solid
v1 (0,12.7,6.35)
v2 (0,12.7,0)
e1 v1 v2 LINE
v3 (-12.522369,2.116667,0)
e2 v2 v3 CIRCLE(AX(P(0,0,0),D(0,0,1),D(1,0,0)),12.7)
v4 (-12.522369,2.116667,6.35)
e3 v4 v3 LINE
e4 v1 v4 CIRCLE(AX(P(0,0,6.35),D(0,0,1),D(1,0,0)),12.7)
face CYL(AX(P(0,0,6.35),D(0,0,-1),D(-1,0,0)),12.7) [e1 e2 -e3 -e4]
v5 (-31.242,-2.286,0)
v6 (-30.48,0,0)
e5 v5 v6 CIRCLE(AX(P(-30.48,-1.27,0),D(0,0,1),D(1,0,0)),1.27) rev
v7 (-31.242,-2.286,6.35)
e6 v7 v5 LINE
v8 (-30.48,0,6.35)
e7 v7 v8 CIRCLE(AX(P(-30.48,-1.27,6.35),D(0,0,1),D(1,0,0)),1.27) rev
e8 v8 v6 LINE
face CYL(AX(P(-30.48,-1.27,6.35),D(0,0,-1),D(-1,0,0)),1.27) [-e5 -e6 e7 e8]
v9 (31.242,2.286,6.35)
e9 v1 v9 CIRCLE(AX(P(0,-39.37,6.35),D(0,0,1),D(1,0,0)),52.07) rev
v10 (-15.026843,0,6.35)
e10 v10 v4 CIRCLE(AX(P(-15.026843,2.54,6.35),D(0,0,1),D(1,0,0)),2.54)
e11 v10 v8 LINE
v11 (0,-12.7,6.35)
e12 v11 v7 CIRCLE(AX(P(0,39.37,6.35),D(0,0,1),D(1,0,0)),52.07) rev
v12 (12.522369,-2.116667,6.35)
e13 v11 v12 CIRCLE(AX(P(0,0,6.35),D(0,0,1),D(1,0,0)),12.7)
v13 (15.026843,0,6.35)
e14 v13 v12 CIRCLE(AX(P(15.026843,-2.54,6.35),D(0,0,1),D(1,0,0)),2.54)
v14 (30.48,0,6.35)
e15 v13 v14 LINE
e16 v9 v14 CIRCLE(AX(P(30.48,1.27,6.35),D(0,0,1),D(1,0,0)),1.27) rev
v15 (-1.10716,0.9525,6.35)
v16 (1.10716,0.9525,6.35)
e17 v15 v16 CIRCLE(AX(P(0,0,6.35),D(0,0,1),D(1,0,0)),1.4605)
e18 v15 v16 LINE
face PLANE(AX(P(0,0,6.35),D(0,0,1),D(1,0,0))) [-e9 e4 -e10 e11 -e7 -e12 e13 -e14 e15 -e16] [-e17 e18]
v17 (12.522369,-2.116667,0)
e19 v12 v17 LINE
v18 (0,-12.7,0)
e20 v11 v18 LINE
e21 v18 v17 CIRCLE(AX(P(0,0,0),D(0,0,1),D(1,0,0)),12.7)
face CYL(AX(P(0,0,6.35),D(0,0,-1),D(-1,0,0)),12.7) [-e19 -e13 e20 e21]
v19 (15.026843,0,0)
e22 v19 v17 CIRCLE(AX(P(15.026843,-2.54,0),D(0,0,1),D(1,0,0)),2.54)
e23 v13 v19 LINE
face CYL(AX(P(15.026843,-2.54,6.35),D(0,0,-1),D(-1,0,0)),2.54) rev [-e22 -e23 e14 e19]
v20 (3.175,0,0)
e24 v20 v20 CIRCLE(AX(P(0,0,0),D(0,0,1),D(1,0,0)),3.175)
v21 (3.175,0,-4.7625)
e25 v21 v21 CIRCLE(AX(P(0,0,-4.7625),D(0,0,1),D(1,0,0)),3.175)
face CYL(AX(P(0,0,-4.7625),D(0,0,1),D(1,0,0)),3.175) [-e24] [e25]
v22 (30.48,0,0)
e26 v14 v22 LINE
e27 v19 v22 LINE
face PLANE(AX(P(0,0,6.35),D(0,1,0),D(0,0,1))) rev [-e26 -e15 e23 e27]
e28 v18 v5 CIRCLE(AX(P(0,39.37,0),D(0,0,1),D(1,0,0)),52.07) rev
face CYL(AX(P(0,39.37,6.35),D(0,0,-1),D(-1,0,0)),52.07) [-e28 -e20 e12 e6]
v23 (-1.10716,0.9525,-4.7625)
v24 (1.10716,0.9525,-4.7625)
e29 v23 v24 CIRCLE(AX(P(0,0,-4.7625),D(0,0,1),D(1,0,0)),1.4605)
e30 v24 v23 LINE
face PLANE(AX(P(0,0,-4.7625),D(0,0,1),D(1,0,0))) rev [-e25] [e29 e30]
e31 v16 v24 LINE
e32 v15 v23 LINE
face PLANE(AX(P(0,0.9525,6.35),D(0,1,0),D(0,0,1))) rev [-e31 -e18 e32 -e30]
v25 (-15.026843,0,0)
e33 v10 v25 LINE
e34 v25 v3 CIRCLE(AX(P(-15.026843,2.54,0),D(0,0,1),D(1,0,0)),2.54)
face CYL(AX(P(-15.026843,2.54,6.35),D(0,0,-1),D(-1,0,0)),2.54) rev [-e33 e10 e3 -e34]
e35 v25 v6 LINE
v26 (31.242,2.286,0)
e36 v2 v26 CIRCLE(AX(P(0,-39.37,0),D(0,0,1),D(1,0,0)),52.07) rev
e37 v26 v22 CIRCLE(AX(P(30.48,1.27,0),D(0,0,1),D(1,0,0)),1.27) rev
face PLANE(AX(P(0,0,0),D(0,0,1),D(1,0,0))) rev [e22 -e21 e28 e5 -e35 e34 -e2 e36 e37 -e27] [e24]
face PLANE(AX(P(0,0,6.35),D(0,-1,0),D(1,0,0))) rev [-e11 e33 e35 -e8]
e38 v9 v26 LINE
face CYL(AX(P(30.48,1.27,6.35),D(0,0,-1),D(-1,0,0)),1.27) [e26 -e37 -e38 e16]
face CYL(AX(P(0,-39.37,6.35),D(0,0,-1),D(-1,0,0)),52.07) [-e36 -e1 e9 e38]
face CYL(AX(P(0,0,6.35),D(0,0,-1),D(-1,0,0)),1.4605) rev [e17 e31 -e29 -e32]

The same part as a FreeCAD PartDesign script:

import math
import FreeCAD as App
import Part
import Sketcher
Q = App.Units.Quantity

doc = App.newDocument("Part")
params = doc.addObject("Spreadsheet::Sheet", "Params")
for row, (alias, value) in enumerate([
    ("sketch1_radius", "0.5 in"),
    ("sketch1_radius2", "0.1 in"),
    ("sketch1_radius3", "0.05 in"),
    ("sketch1_radius4", "2.05 in"),
    ("pad1_length", "0.25 in"),
    ("sketch2_diameter", "0.25 in"),
    ("pad2_length", "0.4375 in"),
], start=1):
    params.set(f"A{row}", alias)
    params.set(f"B{row}", "=" + value)
    params.setAlias(f"B{row}", alias)

body = doc.addObject("PartDesign::Body", "Body")

sketch1 = doc.addObject("Sketcher::SketchObject", "Sketch")
body.addObject(sketch1)
sketch1.AttachmentSupport = (doc.XY_Plane, [""])
sketch1.MapMode = "FlatFace"
sketch1.addGeometry(Part.LineSegment(App.Vector(15, 0, 0), App.Vector(30.5, 0, 0)), False)
sketch1.addGeometry(Part.ArcOfCircle(Part.Circle(App.Vector(30.5, 1.3, 0), App.Vector(0, 0, 1), 1.3), math.radians(-90), math.radians(53)), False)
sketch1.addGeometry(Part.ArcOfCircle(Part.Circle(App.Vector(0, -39.4, 0), App.Vector(0, 0, 1), 52.1), math.radians(53), math.radians(90)), False)
sketch1.addGeometry(Part.ArcOfCircle(Part.Circle(App.Vector(0, 0, 0), App.Vector(0, 0, 1), 12.7), math.radians(90), math.radians(170)), False)
sketch1.addGeometry(Part.ArcOfCircle(Part.Circle(App.Vector(-15, 2.5, 0), App.Vector(0, 0, 1), 2.5), math.radians(-90), math.radians(-10)), False)
sketch1.addGeometry(Part.LineSegment(App.Vector(-15, 0, 0), App.Vector(-30.5, 0, 0)), False)
sketch1.addGeometry(Part.ArcOfCircle(Part.Circle(App.Vector(-30.5, -1.3, 0), App.Vector(0, 0, 1), 1.3), math.radians(90), math.radians(233)), False)
sketch1.addGeometry(Part.ArcOfCircle(Part.Circle(App.Vector(0, 39.4, 0), App.Vector(0, 0, 1), 52.1), math.radians(-127), math.radians(-90)), False)
sketch1.addGeometry(Part.ArcOfCircle(Part.Circle(App.Vector(0, 0, 0), App.Vector(0, 0, 1), 12.7), math.radians(-90), math.radians(-10)), False)
sketch1.addGeometry(Part.ArcOfCircle(Part.Circle(App.Vector(15, -2.5, 0), App.Vector(0, 0, 1), 2.5), math.radians(90), math.radians(170)), False)
sketch1.addGeometry(Part.ArcOfCircle(Part.Circle(App.Vector(0, 0, 0), App.Vector(0, 0, 1), 1.5), math.radians(139), math.radians(401)), False)
sketch1.addGeometry(Part.LineSegment(App.Vector(-1.1, 1, 0), App.Vector(1.1, 1, 0)), False)
sketch1.addConstraint(Sketcher.Constraint("Tangent", 0, 2, 1, 1))
sketch1.addConstraint(Sketcher.Constraint("Tangent", 1, 2, 2, 1))
sketch1.addConstraint(Sketcher.Constraint("Tangent", 2, 2, 3, 1))
sketch1.addConstraint(Sketcher.Constraint("Tangent", 3, 2, 4, 2))
sketch1.addConstraint(Sketcher.Constraint("Tangent", 4, 1, 5, 1))
sketch1.addConstraint(Sketcher.Constraint("Tangent", 5, 2, 6, 1))
sketch1.addConstraint(Sketcher.Constraint("Tangent", 6, 2, 7, 1))
sketch1.addConstraint(Sketcher.Constraint("Tangent", 7, 2, 8, 1))
sketch1.addConstraint(Sketcher.Constraint("Tangent", 8, 2, 9, 2))
sketch1.addConstraint(Sketcher.Constraint("Tangent", 9, 1, 0, 1))
sketch1.addConstraint(Sketcher.Constraint("Coincident", 10, 1, 11, 1))
sketch1.addConstraint(Sketcher.Constraint("Coincident", 11, 2, 10, 2))
sketch1.addConstraint(Sketcher.Constraint("Horizontal", 0))
sketch1.addConstraint(Sketcher.Constraint("Horizontal", 5))
sketch1.addConstraint(Sketcher.Constraint("Horizontal", 11))
sketch1.addConstraint(Sketcher.Constraint("Coincident", 3, 3, -1, 1))
sketch1.addConstraint(Sketcher.Constraint("Coincident", 8, 3, -1, 1))
sketch1.addConstraint(Sketcher.Constraint("Coincident", 10, 3, -1, 1))
sketch1.addConstraint(Sketcher.Constraint("Equal", 1, 6))
sketch1.addConstraint(Sketcher.Constraint("Equal", 2, 7))
sketch1.addConstraint(Sketcher.Constraint("Equal", 3, 8))
sketch1.addConstraint(Sketcher.Constraint("Equal", 4, 9))
sketch1.addConstraint(Sketcher.Constraint("Symmetric", 1, 3, 6, 3, -1, 1))
sketch1.addConstraint(Sketcher.Constraint("PointOnObject", 2, 3, -2))
sketch1.addConstraint(Sketcher.Constraint("PointOnObject", 0, 2, -1))
sketch1.addConstraint(Sketcher.Constraint("Radius", 3, Q("0.5 in")))
sketch1.addConstraint(Sketcher.Constraint("Radius", 4, Q("0.1 in")))
sketch1.addConstraint(Sketcher.Constraint("Radius", 1, Q("0.05 in")))
sketch1.addConstraint(Sketcher.Constraint("Radius", 2, Q("2.05 in")))
sketch1.addConstraint(Sketcher.Constraint("Radius", 10, Q("0.0575 in")))
sketch1.addConstraint(Sketcher.Constraint("DistanceY", -1, 1, 10, 1, Q("0.0375 in")))
sketch1.setExpression("Constraints[25]", "Params.sketch1_radius")
sketch1.setExpression("Constraints[26]", "Params.sketch1_radius2")
sketch1.setExpression("Constraints[27]", "Params.sketch1_radius3")
sketch1.setExpression("Constraints[28]", "Params.sketch1_radius4")
pad1 = doc.addObject("PartDesign::Pad", "Pad")
body.addObject(pad1)
pad1.Profile = sketch1
pad1.setExpression("Length", "Params.pad1_length")

sketch2 = doc.addObject("Sketcher::SketchObject", "Sketch001")
body.addObject(sketch2)
sketch2.AttachmentSupport = (doc.XY_Plane, [""])
sketch2.MapMode = "FlatFace"
sketch2.AttachmentOffset = App.Placement(App.Vector(0, 0, -0.1875 * 25.4), App.Rotation())
sketch2.addGeometry(Part.Circle(App.Vector(0, 0, 0), App.Vector(0, 0, 1), 3.2), False)
sketch2.addGeometry(Part.ArcOfCircle(Part.Circle(App.Vector(0, 0, 0), App.Vector(0, 0, 1), 1.5), math.radians(139), math.radians(401)), False)
sketch2.addGeometry(Part.LineSegment(App.Vector(-1.1, 1, 0), App.Vector(1.1, 1, 0)), False)
sketch2.addConstraint(Sketcher.Constraint("Coincident", 1, 1, 2, 1))
sketch2.addConstraint(Sketcher.Constraint("Coincident", 2, 2, 1, 2))
sketch2.addConstraint(Sketcher.Constraint("Horizontal", 2))
sketch2.addConstraint(Sketcher.Constraint("Coincident", 0, 3, -1, 1))
sketch2.addConstraint(Sketcher.Constraint("Coincident", 1, 3, -1, 1))
sketch2.addConstraint(Sketcher.Constraint("Diameter", 0, Q("0.25 in")))
sketch2.addConstraint(Sketcher.Constraint("Radius", 1, Q("0.0575 in")))
sketch2.addConstraint(Sketcher.Constraint("DistanceY", -1, 1, 1, 1, Q("0.0375 in")))
sketch2.setExpression("Constraints[5]", "Params.sketch2_diameter")
pad2 = doc.addObject("PartDesign::Pad", "Pad001")
body.addObject(pad2)
pad2.Profile = sketch2
pad2.setExpression("Length", "Params.pad2_length")

doc.recompute()
